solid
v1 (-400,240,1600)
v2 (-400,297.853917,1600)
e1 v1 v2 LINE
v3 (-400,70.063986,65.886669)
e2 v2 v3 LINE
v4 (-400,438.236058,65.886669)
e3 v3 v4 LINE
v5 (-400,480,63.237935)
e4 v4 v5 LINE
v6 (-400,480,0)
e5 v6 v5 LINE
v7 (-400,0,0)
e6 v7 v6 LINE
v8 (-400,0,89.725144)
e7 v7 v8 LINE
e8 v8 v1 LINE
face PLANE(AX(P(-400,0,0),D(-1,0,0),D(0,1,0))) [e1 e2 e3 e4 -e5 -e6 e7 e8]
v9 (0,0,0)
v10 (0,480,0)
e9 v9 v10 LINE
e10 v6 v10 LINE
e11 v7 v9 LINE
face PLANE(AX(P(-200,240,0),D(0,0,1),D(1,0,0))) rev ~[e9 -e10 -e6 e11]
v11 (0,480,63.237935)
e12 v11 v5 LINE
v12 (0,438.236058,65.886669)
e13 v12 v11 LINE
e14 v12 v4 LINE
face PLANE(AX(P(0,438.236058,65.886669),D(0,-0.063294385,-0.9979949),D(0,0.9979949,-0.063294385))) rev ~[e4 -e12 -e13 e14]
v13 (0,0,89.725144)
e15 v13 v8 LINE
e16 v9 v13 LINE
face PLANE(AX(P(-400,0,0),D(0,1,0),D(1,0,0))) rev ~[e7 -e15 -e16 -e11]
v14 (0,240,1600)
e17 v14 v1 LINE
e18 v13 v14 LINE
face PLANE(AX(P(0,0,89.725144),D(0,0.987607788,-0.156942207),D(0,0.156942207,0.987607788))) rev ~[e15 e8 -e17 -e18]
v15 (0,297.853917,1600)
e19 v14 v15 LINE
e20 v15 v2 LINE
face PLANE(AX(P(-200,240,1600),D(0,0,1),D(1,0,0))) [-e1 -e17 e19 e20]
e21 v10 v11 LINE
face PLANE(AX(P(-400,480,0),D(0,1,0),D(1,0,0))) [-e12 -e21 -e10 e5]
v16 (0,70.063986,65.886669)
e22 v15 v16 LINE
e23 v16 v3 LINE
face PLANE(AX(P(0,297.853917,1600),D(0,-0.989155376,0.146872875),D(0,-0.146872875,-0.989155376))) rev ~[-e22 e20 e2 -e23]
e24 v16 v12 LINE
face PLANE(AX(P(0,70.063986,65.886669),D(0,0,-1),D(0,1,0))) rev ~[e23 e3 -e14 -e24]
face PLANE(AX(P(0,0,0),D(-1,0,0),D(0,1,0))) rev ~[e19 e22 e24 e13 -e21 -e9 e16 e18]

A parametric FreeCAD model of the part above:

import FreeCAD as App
import Part
import Sketcher
Q = App.Units.Quantity

doc = App.newDocument("Part")
body = doc.addObject("PartDesign::Body", "Body")

# Sketch on XY plane
sketch1 = body.newObject("Sketcher::SketchObject", "Sketch")
sketch1.AttachmentSupport = (doc.getObject("XY_Plane"), [""])
sketch1.MapMode = "FlatFace"
sketch1.addGeometry([
    Part.LineSegment(App.Vector(-400, 480, 0), App.Vector(-400, 0, 0)),
    Part.LineSegment(App.Vector(-400, 0, 0), App.Vector(0, 0, 0)),
    Part.LineSegment(App.Vector(0, 0, 0), App.Vector(0, 480, 0)),
    Part.LineSegment(App.Vector(0, 480, 0), App.Vector(-400, 480, 0)),
], False)
sketch1.addConstraint([
    Sketcher.Constraint("Coincident", 0, 2, 1, 1),
    Sketcher.Constraint("Coincident", 1, 2, 2, 1),
    Sketcher.Constraint("Coincident", 2, 2, 3, 1),
    Sketcher.Constraint("Coincident", 3, 2, 0, 1),
    Sketcher.Constraint("Vertical", 0),
    Sketcher.Constraint("Horizontal", 1),
    Sketcher.Constraint("Vertical", 2),
    Sketcher.Constraint("Horizontal", 3),
    Sketcher.Constraint("Coincident", 1, 2, -1, 1),
    Sketcher.Constraint("DistanceX", 1, 1, 1, 2, Q("400 mm")),
    Sketcher.Constraint("DistanceY", 0, 2, 0, 1, Q("480 mm")),
])
pad1 = body.newObject("PartDesign::Pad", "Pad")
pad1.Profile = sketch1
pad1.Length = 1600

# Sketch on YZ plane
sketch2 = body.newObject("Sketcher::SketchObject", "Sketch001")
sketch2.AttachmentSupport = (doc.getObject("YZ_Plane"), [""])
sketch2.MapMode = "FlatFace"
sketch2.addGeometry([
    Part.LineSegment(App.Vector(0, 89.725144, 0), App.Vector(240, 1600, 0)),  # 0
    Part.LineSegment(App.Vector(240, 1600, 0), App.Vector(0, 1600, 0)),  # 1
    Part.LineSegment(App.Vector(0, 1600, 0), App.Vector(0, 89.725144, 0)),  # 2
    Part.LineSegment(App.Vector(70.063986, 65.886669, 0), App.Vector(438.236058, 65.886669, 0)),  # 3
    Part.LineSegment(App.Vector(438.236058, 65.886669, 0), App.Vector(480, 63.237935, 0)),  # 4
    Part.LineSegment(App.Vector(480, 63.237935, 0), App.Vector(480, 1600, 0)),  # 5
    Part.LineSegment(App.Vector(480, 1600, 0), App.Vector(297.853917, 1600, 0)),  # 6
    Part.LineSegment(App.Vector(297.853917, 1600, 0), App.Vector(70.063986, 65.886669, 0)),  # 7
], False)
sketch2.addConstraint([
    Sketcher.Constraint("Coincident", 0, 2, 1, 1),
    Sketcher.Constraint("Coincident", 1, 2, 2, 1),
    Sketcher.Constraint("Coincident", 2, 2, 0, 1),
    Sketcher.Constraint("Coincident", 3, 2, 4, 1),
    Sketcher.Constraint("Coincident", 4, 2, 5, 1),
    Sketcher.Constraint("Coincident", 5, 2, 6, 1),
    Sketcher.Constraint("Coincident", 6, 2, 7, 1),
    Sketcher.Constraint("Coincident", 7, 2, 3, 1),
    Sketcher.Constraint("Horizontal", 1),
    Sketcher.Constraint("Vertical", 2),
    Sketcher.Constraint("Horizontal", 3),
    Sketcher.Constraint("Vertical", 5),
    Sketcher.Constraint("Horizontal", 6),
    Sketcher.Constraint("PointOnObject", 1, 2, -2),
    Sketcher.Constraint("Horizontal", 1, 2, 5, 2),
    Sketcher.Constraint("DistanceX", 1, 2, 1, 1, Q("240 mm")),
    Sketcher.Constraint("DistanceY", -1, 1, 0, 2, Q("1600 mm")),
    Sketcher.Constraint("DistanceX", -1, 1, 4, 2, Q("480 mm")),
    Sketcher.Constraint("DistanceX", 3, 1, 3, 2, Q("368.172072 mm")),
    Sketcher.Constraint("Distance", 0, Q("1529.22534 mm")),
    Sketcher.Constraint("Distance", 4, Q("41.847851 mm")),
    Sketcher.Constraint("Distance", 7, Q("1550.932611 mm")),
    Sketcher.Constraint("DistanceX", 6, 2, 6, 1, Q("182.146083 mm")),
    Sketcher.Constraint("DistanceY", 5, 1, 5, 2, Q("1536.762065 mm")),
])
pocket1 = body.newObject("PartDesign::Pocket", "Pocket")
pocket1.Profile = sketch2
pocket1.Type = "ThroughAll"

doc.recompute()
